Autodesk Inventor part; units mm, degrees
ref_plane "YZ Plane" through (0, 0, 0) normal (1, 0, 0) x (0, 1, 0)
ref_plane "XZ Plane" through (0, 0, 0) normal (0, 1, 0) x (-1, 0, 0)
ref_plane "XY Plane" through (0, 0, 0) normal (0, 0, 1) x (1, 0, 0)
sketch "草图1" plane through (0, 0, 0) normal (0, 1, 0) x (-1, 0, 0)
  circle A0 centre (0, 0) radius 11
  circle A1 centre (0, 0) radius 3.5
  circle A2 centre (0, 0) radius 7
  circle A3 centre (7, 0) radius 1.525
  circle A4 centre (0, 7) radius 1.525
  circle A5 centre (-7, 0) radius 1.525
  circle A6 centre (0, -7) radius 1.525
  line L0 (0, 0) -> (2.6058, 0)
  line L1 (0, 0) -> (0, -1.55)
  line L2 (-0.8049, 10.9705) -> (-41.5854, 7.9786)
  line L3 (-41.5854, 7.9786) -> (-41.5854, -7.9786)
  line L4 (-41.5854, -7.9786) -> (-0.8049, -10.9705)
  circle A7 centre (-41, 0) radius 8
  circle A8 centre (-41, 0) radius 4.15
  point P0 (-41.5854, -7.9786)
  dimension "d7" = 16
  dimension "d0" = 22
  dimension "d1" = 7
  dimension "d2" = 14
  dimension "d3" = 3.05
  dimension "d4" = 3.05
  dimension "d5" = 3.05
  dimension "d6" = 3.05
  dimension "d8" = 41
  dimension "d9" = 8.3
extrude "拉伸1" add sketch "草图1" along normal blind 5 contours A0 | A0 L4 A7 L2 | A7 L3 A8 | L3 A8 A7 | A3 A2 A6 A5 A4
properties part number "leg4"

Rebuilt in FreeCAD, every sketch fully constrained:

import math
import FreeCAD as App
import Part
import Sketcher

V = App.Vector

doc = App.newDocument("Part")
body = doc.addObject("PartDesign::Body", "Body")

sketch1 = doc.addObject("Sketcher::SketchObject", "Sketch")
body.addObject(sketch1)
sketch1.AttachmentSupport = (doc.XZ_Plane, [""])
sketch1.MapMode = "FlatFace"
sketch1.addGeometry([
    Part.ArcOfCircle(Part.Circle(V(0, 0, 0), V(0, 0, 1), 11), math.radians(85.803757), math.radians(274.196243)),
    Part.LineSegment(V(0.8049, 10.9705, 0), V(41.5854, 7.9786, 0)),
    Part.ArcOfCircle(Part.Circle(V(41, 0, 0), V(0, 0, 1), 8), math.radians(-85.803655), math.radians(85.803655)),
    Part.LineSegment(V(41.5854, -7.9786, 0), V(0.8049, -10.9705, 0)),
    Part.Circle(V(0, 7, 0), V(0, 0, 1), 1.525),
    Part.Circle(V(7, 0, 0), V(0, 0, 1), 1.525),
    Part.Circle(V(0, -7, 0), V(0, 0, 1), 1.525),
    Part.Circle(V(-7, 0, 0), V(0, 0, 1), 1.525),
    Part.Circle(V(0, 0, 0), V(0, 0, 1), 3.5),
    Part.Circle(V(41, 0, 0), V(0, 0, 1), 4.15),
], False)
sketch1.addConstraint([
    Sketcher.Constraint("Tangent", 0, 1, 1, 1),
    Sketcher.Constraint("Tangent", 1, 2, 2, 2),
    Sketcher.Constraint("Tangent", 2, 1, 3, 1),
    Sketcher.Constraint("Tangent", 3, 2, 0, 2),
    Sketcher.Constraint("Coincident", 0, 3, -1, 1),
    Sketcher.Constraint("Coincident", 8, 3, -1, 1),
    Sketcher.Constraint("Coincident", 9, 3, 2, 3),
    Sketcher.Constraint("Equal", 4, 5),
    Sketcher.Constraint("Equal", 5, 6),
    Sketcher.Constraint("Equal", 6, 7),
    Sketcher.Constraint("Symmetric", 4, 3, 6, 3, -1, 1),
    Sketcher.Constraint("Symmetric", 5, 3, 7, 3, -1, 1),
    Sketcher.Constraint("PointOnObject", 2, 3, -1),
    Sketcher.Constraint("PointOnObject", 4, 3, -2),
    Sketcher.Constraint("PointOnObject", 5, 3, -1),
    Sketcher.Constraint("Diameter", 8, 7.0),
    Sketcher.Constraint("Radius", 0, 11.0),
    Sketcher.Constraint("Radius", 2, 8.0),
    Sketcher.Constraint("Diameter", 9, 8.3),
    Sketcher.Constraint("Diameter", 4, 3.05),
    Sketcher.Constraint("DistanceX", -1, 1, 2, 3, 41.0),
    Sketcher.Constraint("DistanceY", -1, 1, 4, 3, 7.0),
    Sketcher.Constraint("DistanceX", -1, 1, 5, 3, 7.0),
])
pad1 = doc.addObject("PartDesign::Pad", "Pad")
body.addObject(pad1)
pad1.Profile = sketch1
pad1.Length = 5
pad1.Reversed = True

doc.recompute()
